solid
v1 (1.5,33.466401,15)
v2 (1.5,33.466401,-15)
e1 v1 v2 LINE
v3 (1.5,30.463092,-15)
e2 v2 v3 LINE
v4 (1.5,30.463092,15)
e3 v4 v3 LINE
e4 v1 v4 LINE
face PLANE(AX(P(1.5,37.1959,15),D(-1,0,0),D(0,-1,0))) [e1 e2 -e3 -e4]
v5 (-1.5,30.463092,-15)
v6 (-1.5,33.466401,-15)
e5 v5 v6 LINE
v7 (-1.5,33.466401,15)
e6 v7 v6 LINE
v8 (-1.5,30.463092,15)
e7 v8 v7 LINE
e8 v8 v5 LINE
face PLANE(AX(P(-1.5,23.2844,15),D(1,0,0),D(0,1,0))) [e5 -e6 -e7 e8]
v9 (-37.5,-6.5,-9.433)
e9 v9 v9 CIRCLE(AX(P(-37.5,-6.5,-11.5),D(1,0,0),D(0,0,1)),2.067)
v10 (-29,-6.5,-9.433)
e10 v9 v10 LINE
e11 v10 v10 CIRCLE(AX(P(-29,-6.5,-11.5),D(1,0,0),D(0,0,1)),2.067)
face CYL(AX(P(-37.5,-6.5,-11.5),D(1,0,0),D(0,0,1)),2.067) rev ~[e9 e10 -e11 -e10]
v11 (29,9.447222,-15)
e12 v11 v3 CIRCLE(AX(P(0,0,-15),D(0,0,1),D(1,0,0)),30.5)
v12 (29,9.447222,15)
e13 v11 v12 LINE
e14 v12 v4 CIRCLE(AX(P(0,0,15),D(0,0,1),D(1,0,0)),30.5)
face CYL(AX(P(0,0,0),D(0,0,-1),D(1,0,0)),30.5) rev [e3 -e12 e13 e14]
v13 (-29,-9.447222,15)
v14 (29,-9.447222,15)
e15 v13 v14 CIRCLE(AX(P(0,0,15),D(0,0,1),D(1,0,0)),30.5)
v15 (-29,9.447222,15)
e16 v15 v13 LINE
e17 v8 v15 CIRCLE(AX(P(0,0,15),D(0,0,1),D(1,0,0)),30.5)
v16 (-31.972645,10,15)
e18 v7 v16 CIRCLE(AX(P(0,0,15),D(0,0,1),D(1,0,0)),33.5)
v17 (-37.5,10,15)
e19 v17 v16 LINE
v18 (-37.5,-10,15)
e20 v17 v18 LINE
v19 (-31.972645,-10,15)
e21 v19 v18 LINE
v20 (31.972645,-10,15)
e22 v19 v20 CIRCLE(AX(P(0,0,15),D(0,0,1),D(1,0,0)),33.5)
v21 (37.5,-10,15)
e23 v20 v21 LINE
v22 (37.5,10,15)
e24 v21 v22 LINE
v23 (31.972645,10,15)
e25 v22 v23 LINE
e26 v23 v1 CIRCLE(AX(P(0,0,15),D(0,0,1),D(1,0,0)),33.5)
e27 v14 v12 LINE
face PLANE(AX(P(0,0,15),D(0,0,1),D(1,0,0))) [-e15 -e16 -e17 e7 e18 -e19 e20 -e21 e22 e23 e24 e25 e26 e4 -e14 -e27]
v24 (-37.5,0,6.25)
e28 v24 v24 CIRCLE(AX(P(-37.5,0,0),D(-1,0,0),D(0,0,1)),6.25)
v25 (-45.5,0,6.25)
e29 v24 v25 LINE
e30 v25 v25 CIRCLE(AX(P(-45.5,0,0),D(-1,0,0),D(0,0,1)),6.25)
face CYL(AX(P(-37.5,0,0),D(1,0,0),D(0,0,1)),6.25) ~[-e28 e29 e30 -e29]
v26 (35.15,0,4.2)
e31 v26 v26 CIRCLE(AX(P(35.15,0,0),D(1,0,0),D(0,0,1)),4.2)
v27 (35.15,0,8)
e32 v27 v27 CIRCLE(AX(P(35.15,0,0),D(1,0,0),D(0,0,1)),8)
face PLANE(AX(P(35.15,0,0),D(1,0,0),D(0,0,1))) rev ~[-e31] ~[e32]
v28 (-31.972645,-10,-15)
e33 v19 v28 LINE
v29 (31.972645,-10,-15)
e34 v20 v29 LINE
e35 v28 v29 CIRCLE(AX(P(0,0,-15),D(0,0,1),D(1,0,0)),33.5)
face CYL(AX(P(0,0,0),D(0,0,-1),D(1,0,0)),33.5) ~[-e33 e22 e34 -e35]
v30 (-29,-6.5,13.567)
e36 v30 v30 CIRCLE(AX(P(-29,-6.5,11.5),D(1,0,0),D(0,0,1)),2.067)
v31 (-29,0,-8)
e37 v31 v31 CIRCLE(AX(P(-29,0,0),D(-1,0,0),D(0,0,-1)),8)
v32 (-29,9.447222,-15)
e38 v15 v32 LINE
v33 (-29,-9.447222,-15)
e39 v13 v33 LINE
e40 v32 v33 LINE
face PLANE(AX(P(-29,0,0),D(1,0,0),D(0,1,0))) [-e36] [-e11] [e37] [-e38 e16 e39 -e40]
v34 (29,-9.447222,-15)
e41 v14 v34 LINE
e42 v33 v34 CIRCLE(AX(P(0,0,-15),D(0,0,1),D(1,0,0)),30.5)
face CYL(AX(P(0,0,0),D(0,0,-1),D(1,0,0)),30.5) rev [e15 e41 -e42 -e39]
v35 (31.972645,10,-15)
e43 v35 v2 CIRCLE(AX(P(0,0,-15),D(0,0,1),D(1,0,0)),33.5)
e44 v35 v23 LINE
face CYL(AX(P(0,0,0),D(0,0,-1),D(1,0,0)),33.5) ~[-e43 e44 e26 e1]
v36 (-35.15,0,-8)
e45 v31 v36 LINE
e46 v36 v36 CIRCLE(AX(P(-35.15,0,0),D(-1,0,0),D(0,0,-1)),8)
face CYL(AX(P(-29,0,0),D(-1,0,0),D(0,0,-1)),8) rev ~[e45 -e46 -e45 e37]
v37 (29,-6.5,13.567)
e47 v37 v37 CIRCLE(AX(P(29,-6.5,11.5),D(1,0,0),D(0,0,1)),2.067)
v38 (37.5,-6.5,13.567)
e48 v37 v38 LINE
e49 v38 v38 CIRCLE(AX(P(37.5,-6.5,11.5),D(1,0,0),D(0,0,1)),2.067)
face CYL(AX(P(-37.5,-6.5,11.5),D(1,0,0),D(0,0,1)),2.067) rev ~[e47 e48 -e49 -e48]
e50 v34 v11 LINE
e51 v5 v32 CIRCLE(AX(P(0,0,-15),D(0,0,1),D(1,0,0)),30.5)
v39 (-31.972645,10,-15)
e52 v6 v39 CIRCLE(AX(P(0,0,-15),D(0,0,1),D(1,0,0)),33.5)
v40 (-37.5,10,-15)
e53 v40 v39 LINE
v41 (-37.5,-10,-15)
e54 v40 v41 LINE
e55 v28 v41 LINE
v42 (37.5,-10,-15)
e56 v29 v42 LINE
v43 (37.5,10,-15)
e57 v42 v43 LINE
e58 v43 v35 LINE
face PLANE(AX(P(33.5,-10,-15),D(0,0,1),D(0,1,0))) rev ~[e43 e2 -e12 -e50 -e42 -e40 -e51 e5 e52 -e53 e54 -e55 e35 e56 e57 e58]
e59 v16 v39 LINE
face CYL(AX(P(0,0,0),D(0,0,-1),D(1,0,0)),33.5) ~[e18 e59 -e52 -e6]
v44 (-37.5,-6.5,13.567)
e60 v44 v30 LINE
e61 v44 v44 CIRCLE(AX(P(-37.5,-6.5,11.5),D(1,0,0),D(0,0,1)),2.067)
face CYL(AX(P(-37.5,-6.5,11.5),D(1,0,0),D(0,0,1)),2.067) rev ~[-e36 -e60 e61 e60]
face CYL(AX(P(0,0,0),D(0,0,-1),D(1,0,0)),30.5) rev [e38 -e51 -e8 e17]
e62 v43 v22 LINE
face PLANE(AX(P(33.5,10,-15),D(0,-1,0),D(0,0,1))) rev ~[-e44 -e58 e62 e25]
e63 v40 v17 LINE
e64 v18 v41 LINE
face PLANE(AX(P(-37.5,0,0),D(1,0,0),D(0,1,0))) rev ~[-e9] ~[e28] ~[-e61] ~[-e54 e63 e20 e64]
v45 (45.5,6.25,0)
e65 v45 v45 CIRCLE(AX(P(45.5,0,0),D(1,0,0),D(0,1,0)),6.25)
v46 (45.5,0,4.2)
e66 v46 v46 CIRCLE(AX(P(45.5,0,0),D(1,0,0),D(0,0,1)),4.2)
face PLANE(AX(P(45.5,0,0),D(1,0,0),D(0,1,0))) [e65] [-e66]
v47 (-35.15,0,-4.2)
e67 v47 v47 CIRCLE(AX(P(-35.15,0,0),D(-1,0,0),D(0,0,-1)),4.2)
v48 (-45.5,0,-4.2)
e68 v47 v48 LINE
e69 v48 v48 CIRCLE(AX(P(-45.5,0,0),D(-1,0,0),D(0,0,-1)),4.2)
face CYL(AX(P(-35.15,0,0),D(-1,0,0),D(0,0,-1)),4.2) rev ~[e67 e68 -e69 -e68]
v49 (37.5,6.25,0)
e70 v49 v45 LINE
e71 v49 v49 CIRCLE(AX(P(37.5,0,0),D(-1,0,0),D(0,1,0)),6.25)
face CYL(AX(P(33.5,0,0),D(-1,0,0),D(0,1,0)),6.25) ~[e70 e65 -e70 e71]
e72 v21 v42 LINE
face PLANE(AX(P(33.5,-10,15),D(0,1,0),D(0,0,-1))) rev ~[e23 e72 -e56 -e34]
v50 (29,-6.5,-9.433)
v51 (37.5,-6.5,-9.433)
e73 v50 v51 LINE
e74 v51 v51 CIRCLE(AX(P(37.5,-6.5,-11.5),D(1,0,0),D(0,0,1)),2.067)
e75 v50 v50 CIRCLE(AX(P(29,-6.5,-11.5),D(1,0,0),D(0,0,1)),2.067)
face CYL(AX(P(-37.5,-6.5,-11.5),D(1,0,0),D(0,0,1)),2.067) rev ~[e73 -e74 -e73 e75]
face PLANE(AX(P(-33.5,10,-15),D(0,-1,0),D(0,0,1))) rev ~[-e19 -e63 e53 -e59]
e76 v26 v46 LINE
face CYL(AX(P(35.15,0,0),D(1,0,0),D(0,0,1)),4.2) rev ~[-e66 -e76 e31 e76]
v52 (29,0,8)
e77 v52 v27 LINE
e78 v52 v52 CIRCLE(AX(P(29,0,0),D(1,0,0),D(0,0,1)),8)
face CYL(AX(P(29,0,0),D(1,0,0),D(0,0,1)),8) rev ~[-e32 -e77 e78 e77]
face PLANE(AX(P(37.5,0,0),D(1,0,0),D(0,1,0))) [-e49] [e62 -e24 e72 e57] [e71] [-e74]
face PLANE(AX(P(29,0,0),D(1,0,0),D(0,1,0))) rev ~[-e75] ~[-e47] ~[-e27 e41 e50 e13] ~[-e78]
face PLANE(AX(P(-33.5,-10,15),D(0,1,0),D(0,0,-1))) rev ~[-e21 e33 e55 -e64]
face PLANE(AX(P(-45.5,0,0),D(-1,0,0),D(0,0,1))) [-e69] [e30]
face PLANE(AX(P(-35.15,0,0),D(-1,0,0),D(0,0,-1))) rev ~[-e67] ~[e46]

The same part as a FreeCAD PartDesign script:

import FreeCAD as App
import Part
import Sketcher
Q = App.Units.Quantity


def add_polygon(sketch, points):
    """Adds a closed chain of lines whose ends are joined by coincident constraints."""
    first, n = sketch.GeometryCount, len(points)
    for a, b in zip(points, points[1:] + points[:1]):
        sketch.addGeometry(Part.LineSegment(App.Vector(*a, 0), App.Vector(*b, 0)), False)
    for i in range(n):
        sketch.addConstraint(Sketcher.Constraint("Coincident", first + i, 2, first + (i + 1) % n, 1))

doc = App.newDocument("Part")
params = doc.addObject("Spreadsheet::Sheet", "Params")
for row, (alias, value) in enumerate([
    ("sketch1_diameter", "67 mm"),
    ("sketch1_diameter2", "61 mm"),
    ("pad1_length", "30 mm"),
    ("sketch2_width", "20 mm"),
    ("sketch2_height", "30 mm"),
    ("pad2_length", "4 mm"),
    ("pad2_length2", "4.5 mm"),
    ("sketch3_width", "20 mm"),
    ("sketch3_height", "30 mm"),
    ("pad3_length", "4.5 mm"),
    ("pad3_length2", "4 mm"),
    ("sketch4_diameter", "7 mm"),
    ("sketch4_diameter2", "12.5 mm"),
    ("pad4_length", "12 mm"),
    ("sketch5_diameter", "7 mm"),
    ("sketch5_diameter2", "12.5 mm"),
    ("pad5_length", "8 mm"),
    ("sketch6_diameter", "8.4 mm"),
    ("hole_diameter", "8.4 mm"),
    ("hole_depth", "16.5 mm"),
    ("hole_cbore_diameter", "16 mm"),
    ("hole_cbore_depth", "6.15 mm"),
    ("sketch7_diameter", "8.4 mm"),
    ("hole2_diameter", "8.4 mm"),
    ("hole2_depth", "16.5 mm"),
    ("hole2_cbore_diameter", "16 mm"),
    ("hole2_cbore_depth", "6.15 mm"),
    ("hole3_diameter", "4.134 mm"),
    ("hole3_depth", "75 mm"),
], start=1):
    params.set(f"A{row}", alias)
    params.set(f"B{row}", "=" + value)
    params.setAlias(f"B{row}", alias)

body = doc.addObject("PartDesign::Body", "Body")

sketch1 = body.newObject("Sketcher::SketchObject", "Sketch")
sketch1.AttachmentSupport = (doc.getObject("XY_Plane"), [""])
sketch1.MapMode = "FlatFace"
sketch1.addGeometry(Part.Circle(App.Vector(0, 0, 0), App.Vector(0, 0, 1), 33.5), False)
sketch1.addGeometry(Part.Circle(App.Vector(0, 0, 0), App.Vector(0, 0, 1), 30.5), False)
sketch1.addConstraint(Sketcher.Constraint("Coincident", 0, 3, -1, 1))
sketch1.addConstraint(Sketcher.Constraint("Coincident", 1, 3, -1, 1))
sketch1.addConstraint(Sketcher.Constraint("Diameter", 0, Q("67 mm")))
sketch1.addConstraint(Sketcher.Constraint("Diameter", 1, Q("61 mm")))
sketch1.setExpression("Constraints[2]", "Params.sketch1_diameter")
sketch1.setExpression("Constraints[3]", "Params.sketch1_diameter2")
pad1 = body.newObject("PartDesign::Pad", "Pad")
pad1.Profile = sketch1
pad1.setExpression("Length", "Params.pad1_length")
pad1.Midplane = True

sketch2 = body.newObject("Sketcher::SketchObject", "Sketch001")
sketch2.AttachmentSupport = (doc.getObject("YZ_Plane"), [""])
sketch2.MapMode = "FlatFace"
sketch2.AttachmentOffset = App.Placement(App.Vector(0, 0, 33.5), App.Rotation())
add_polygon(sketch2, [(10, 15), (-10, 15), (-10, -15), (10, -15)])
sketch2.addConstraint(Sketcher.Constraint("Horizontal", 0))
sketch2.addConstraint(Sketcher.Constraint("Vertical", 1))
sketch2.addConstraint(Sketcher.Constraint("Horizontal", 2))
sketch2.addConstraint(Sketcher.Constraint("Vertical", 3))
sketch2.addConstraint(Sketcher.Constraint("Symmetric", 0, 2, 2, 2, -1, 1))
sketch2.addConstraint(Sketcher.Constraint("DistanceX", 0, 2, 0, 1, Q("20 mm")))
sketch2.addConstraint(Sketcher.Constraint("DistanceY", 1, 2, 1, 1, Q("30 mm")))
sketch2.setExpression("Constraints[9]", "Params.sketch2_width")
sketch2.setExpression("Constraints[10]", "Params.sketch2_height")
pad2 = body.newObject("PartDesign::Pad", "Pad001")
pad2.Profile = sketch2
pad2.Type = "TwoLengths"
pad2.setExpression("Length", "Params.pad2_length")
pad2.setExpression("Length2", "Params.pad2_length2")

sketch3 = body.newObject("Sketcher::SketchObject", "Sketch002")
sketch3.AttachmentSupport = (doc.getObject("YZ_Plane"), [""])
sketch3.MapMode = "FlatFace"
sketch3.AttachmentOffset = App.Placement(App.Vector(0, 0, -33.5), App.Rotation())
add_polygon(sketch3, [(-10, -15), (10, -15), (10, 15), (-10, 15)])
sketch3.addConstraint(Sketcher.Constraint("Horizontal", 0))
sketch3.addConstraint(Sketcher.Constraint("Vertical", 1))
sketch3.addConstraint(Sketcher.Constraint("Horizontal", 2))
sketch3.addConstraint(Sketcher.Constraint("Vertical", 3))
sketch3.addConstraint(Sketcher.Constraint("Symmetric", 0, 2, 2, 2, -1, 1))
sketch3.addConstraint(Sketcher.Constraint("DistanceX", 0, 1, 0, 2, Q("20 mm")))
sketch3.addConstraint(Sketcher.Constraint("DistanceY", 1, 1, 1, 2, Q("30 mm")))
sketch3.setExpression("Constraints[9]", "Params.sketch3_width")
sketch3.setExpression("Constraints[10]", "Params.sketch3_height")
pad3 = body.newObject("PartDesign::Pad", "Pad002")
pad3.Profile = sketch3
pad3.Type = "TwoLengths"
pad3.setExpression("Length", "Params.pad3_length")
pad3.setExpression("Length2", "Params.pad3_length2")

sketch4 = body.newObject("Sketcher::SketchObject", "Sketch003")
sketch4.AttachmentSupport = (doc.getObject("YZ_Plane"), [""])
sketch4.MapMode = "FlatFace"
sketch4.AttachmentOffset = App.Placement(App.Vector(0, 0, 33.5), App.Rotation())
sketch4.addGeometry(Part.Circle(App.Vector(0, 0, 0), App.Vector(0, 0, 1), 6.25), False)
sketch4.addGeometry(Part.Circle(App.Vector(0, 0, 0), App.Vector(0, 0, 1), 3.5), False)
sketch4.addConstraint(Sketcher.Constraint("Coincident", 0, 3, -1, 1))
sketch4.addConstraint(Sketcher.Constraint("Coincident", 1, 3, -1, 1))
sketch4.addConstraint(Sketcher.Constraint("Diameter", 1, Q("7 mm")))
sketch4.addConstraint(Sketcher.Constraint("Diameter", 0, Q("12.5 mm")))
sketch4.setExpression("Constraints[2]", "Params.sketch4_diameter")
sketch4.setExpression("Constraints[3]", "Params.sketch4_diameter2")
pad4 = body.newObject("PartDesign::Pad", "Pad003")
pad4.Profile = sketch4
pad4.setExpression("Length", "Params.pad4_length")

sketch5 = body.newObject("Sketcher::SketchObject", "Sketch004")
sketch5.AttachmentSupport = (doc.getObject("YZ_Plane"), [""])
sketch5.MapMode = "FlatFace"
sketch5.AttachmentOffset = App.Placement(App.Vector(0, 0, -37.5), App.Rotation())
sketch5.addGeometry(Part.Circle(App.Vector(0, 0, 0), App.Vector(0, 0, 1), 6.25), False)
sketch5.addGeometry(Part.Circle(App.Vector(0, 0, 0), App.Vector(0, 0, 1), 3.5), False)
sketch5.addConstraint(Sketcher.Constraint("Coincident", 0, 3, -1, 1))
sketch5.addConstraint(Sketcher.Constraint("Coincident", 1, 3, -1, 1))
sketch5.addConstraint(Sketcher.Constraint("Diameter", 1, Q("7 mm")))
sketch5.addConstraint(Sketcher.Constraint("Diameter", 0, Q("12.5 mm")))
sketch5.setExpression("Constraints[2]", "Params.sketch5_diameter")
sketch5.setExpression("Constraints[3]", "Params.sketch5_diameter2")
pad5 = body.newObject("PartDesign::Pad", "Pad004")
pad5.Profile = sketch5
pad5.setExpression("Length", "Params.pad5_length")
pad5.Reversed = True

sketch6 = body.newObject("Sketcher::SketchObject", "Sketch005")
sketch6.AttachmentSupport = (doc.getObject("YZ_Plane"), [""])
sketch6.MapMode = "FlatFace"
sketch6.AttachmentOffset = App.Placement(App.Vector(0, 0, -29), App.Rotation())
sketch6.addGeometry(Part.Circle(App.Vector(0, 0, 0), App.Vector(0, 0, 1), 4.2), False)
sketch6.addConstraint(Sketcher.Constraint("Coincident", 0, 3, -1, 1))
sketch6.addConstraint(Sketcher.Constraint("Diameter", 0, Q("8.4 mm")))
sketch6.setExpression("Constraints[1]", "Params.sketch6_diameter")
doc.recompute()
hole = body.newObject("PartDesign::Hole", "Hole")
hole.Profile = sketch6
hole.ThreadType = "None"
hole.setExpression("Diameter", "Params.hole_diameter")
hole.DepthType = "Dimension"
hole.setExpression("Depth", "Params.hole_depth")
hole.DrillPoint = "Flat"
hole.HoleCutType = "Counterbore"
hole.setExpression("HoleCutDiameter", "Params.hole_cbore_diameter")
hole.setExpression("HoleCutDepth", "Params.hole_cbore_depth")

sketch7 = body.newObject("Sketcher::SketchObject", "Sketch006")
sketch7.AttachmentSupport = (doc.getObject("YZ_Plane"), [""])
sketch7.MapMode = "FlatFace"
sketch7.AttachmentOffset = App.Placement(App.Vector(0, 0, 29), App.Rotation())
sketch7.addGeometry(Part.Circle(App.Vector(0, 0, 0), App.Vector(0, 0, 1), 4.2), False)
sketch7.addConstraint(Sketcher.Constraint("Coincident", 0, 3, -1, 1))
sketch7.addConstraint(Sketcher.Constraint("Diameter", 0, Q("8.4 mm")))
sketch7.setExpression("Constraints[1]", "Params.sketch7_diameter")
doc.recompute()
hole2 = body.newObject("PartDesign::Hole", "Hole001")
hole2.Profile = sketch7
hole2.ThreadType = "None"
hole2.setExpression("Diameter", "Params.hole2_diameter")
hole2.DepthType = "Dimension"
hole2.setExpression("Depth", "Params.hole2_depth")
hole2.DrillPoint = "Flat"
hole2.HoleCutType = "Counterbore"
hole2.setExpression("HoleCutDiameter", "Params.hole2_cbore_diameter")
hole2.setExpression("HoleCutDepth", "Params.hole2_cbore_depth")
hole2.Reversed = True

sketch8 = body.newObject("Sketcher::SketchObject", "Sketch007")
sketch8.AttachmentSupport = (doc.getObject("YZ_Plane"), [""])
sketch8.MapMode = "FlatFace"
sketch8.AttachmentOffset = App.Placement(App.Vector(0, 0, -37.5), App.Rotation())
sketch8.addGeometry(Part.Circle(App.Vector(-6.5, 11.5, 0), App.Vector(0, 0, 1), 2.067), False)
sketch8.addGeometry(Part.Circle(App.Vector(-6.5, -11.5, 0), App.Vector(0, 0, 1), 2.067), False)
sketch8.addConstraint(Sketcher.Constraint("Equal", 0, 1))
sketch8.addConstraint(Sketcher.Constraint("Symmetric", 0, 3, 1, 3, -1))
sketch8.addConstraint(Sketcher.Constraint("Diameter", 0, Q("4.134 mm")))
sketch8.addConstraint(Sketcher.Constraint("DistanceY", 1, 3, 0, 3, Q("23 mm")))
sketch8.addConstraint(Sketcher.Constraint("DistanceX", 0, 3, -1, 1, Q("6.5 mm")))
doc.recompute()
hole3 = body.newObject("PartDesign::Hole", "Hole002")
hole3.Profile = sketch8
hole3.ThreadType = "None"
hole3.setExpression("Diameter", "Params.hole3_diameter")
hole3.DepthType = "Dimension"
hole3.setExpression("Depth", "Params.hole3_depth")
hole3.DrillPoint = "Flat"
hole3.Reversed = True

sketch9 = body.newObject("Sketcher::SketchObject", "Sketch008")
sketch9.AttachmentSupport = (doc.getObject("XY_Plane"), [""])
sketch9.MapMode = "FlatFace"
sketch9.AttachmentOffset = App.Placement(App.Vector(0, 0, 15), App.Rotation())
add_polygon(sketch9, [(1.5, 37.1959), (-1.5, 37.1959), (-1.5, 23.2844), (1.5, 23.2844)])
sketch9.addConstraint(Sketcher.Constraint("Horizontal", 0))
sketch9.addConstraint(Sketcher.Constraint("Vertical", 1))
sketch9.addConstraint(Sketcher.Constraint("Horizontal", 2))
sketch9.addConstraint(Sketcher.Constraint("Vertical", 3))
sketch9.addConstraint(Sketcher.Constraint("DistanceX", 0, 2, -1, 1, Q("1.5 mm")))
sketch9.addConstraint(Sketcher.Constraint("DistanceX", -1, 1, 2, 2, Q("1.5 mm")))
sketch9.addConstraint(Sketcher.Constraint("DistanceY", 1, 2, 1, 1, Q("13.9115 mm")))
sketch9.addConstraint(Sketcher.Constraint("DistanceY", -1, 1, 0, 2, Q("37.196 mm")))
pocket1 = body.newObject("PartDesign::Pocket", "Pocket")
pocket1.Profile = sketch9
pocket1.Type = "ThroughAll"

doc.recompute()
